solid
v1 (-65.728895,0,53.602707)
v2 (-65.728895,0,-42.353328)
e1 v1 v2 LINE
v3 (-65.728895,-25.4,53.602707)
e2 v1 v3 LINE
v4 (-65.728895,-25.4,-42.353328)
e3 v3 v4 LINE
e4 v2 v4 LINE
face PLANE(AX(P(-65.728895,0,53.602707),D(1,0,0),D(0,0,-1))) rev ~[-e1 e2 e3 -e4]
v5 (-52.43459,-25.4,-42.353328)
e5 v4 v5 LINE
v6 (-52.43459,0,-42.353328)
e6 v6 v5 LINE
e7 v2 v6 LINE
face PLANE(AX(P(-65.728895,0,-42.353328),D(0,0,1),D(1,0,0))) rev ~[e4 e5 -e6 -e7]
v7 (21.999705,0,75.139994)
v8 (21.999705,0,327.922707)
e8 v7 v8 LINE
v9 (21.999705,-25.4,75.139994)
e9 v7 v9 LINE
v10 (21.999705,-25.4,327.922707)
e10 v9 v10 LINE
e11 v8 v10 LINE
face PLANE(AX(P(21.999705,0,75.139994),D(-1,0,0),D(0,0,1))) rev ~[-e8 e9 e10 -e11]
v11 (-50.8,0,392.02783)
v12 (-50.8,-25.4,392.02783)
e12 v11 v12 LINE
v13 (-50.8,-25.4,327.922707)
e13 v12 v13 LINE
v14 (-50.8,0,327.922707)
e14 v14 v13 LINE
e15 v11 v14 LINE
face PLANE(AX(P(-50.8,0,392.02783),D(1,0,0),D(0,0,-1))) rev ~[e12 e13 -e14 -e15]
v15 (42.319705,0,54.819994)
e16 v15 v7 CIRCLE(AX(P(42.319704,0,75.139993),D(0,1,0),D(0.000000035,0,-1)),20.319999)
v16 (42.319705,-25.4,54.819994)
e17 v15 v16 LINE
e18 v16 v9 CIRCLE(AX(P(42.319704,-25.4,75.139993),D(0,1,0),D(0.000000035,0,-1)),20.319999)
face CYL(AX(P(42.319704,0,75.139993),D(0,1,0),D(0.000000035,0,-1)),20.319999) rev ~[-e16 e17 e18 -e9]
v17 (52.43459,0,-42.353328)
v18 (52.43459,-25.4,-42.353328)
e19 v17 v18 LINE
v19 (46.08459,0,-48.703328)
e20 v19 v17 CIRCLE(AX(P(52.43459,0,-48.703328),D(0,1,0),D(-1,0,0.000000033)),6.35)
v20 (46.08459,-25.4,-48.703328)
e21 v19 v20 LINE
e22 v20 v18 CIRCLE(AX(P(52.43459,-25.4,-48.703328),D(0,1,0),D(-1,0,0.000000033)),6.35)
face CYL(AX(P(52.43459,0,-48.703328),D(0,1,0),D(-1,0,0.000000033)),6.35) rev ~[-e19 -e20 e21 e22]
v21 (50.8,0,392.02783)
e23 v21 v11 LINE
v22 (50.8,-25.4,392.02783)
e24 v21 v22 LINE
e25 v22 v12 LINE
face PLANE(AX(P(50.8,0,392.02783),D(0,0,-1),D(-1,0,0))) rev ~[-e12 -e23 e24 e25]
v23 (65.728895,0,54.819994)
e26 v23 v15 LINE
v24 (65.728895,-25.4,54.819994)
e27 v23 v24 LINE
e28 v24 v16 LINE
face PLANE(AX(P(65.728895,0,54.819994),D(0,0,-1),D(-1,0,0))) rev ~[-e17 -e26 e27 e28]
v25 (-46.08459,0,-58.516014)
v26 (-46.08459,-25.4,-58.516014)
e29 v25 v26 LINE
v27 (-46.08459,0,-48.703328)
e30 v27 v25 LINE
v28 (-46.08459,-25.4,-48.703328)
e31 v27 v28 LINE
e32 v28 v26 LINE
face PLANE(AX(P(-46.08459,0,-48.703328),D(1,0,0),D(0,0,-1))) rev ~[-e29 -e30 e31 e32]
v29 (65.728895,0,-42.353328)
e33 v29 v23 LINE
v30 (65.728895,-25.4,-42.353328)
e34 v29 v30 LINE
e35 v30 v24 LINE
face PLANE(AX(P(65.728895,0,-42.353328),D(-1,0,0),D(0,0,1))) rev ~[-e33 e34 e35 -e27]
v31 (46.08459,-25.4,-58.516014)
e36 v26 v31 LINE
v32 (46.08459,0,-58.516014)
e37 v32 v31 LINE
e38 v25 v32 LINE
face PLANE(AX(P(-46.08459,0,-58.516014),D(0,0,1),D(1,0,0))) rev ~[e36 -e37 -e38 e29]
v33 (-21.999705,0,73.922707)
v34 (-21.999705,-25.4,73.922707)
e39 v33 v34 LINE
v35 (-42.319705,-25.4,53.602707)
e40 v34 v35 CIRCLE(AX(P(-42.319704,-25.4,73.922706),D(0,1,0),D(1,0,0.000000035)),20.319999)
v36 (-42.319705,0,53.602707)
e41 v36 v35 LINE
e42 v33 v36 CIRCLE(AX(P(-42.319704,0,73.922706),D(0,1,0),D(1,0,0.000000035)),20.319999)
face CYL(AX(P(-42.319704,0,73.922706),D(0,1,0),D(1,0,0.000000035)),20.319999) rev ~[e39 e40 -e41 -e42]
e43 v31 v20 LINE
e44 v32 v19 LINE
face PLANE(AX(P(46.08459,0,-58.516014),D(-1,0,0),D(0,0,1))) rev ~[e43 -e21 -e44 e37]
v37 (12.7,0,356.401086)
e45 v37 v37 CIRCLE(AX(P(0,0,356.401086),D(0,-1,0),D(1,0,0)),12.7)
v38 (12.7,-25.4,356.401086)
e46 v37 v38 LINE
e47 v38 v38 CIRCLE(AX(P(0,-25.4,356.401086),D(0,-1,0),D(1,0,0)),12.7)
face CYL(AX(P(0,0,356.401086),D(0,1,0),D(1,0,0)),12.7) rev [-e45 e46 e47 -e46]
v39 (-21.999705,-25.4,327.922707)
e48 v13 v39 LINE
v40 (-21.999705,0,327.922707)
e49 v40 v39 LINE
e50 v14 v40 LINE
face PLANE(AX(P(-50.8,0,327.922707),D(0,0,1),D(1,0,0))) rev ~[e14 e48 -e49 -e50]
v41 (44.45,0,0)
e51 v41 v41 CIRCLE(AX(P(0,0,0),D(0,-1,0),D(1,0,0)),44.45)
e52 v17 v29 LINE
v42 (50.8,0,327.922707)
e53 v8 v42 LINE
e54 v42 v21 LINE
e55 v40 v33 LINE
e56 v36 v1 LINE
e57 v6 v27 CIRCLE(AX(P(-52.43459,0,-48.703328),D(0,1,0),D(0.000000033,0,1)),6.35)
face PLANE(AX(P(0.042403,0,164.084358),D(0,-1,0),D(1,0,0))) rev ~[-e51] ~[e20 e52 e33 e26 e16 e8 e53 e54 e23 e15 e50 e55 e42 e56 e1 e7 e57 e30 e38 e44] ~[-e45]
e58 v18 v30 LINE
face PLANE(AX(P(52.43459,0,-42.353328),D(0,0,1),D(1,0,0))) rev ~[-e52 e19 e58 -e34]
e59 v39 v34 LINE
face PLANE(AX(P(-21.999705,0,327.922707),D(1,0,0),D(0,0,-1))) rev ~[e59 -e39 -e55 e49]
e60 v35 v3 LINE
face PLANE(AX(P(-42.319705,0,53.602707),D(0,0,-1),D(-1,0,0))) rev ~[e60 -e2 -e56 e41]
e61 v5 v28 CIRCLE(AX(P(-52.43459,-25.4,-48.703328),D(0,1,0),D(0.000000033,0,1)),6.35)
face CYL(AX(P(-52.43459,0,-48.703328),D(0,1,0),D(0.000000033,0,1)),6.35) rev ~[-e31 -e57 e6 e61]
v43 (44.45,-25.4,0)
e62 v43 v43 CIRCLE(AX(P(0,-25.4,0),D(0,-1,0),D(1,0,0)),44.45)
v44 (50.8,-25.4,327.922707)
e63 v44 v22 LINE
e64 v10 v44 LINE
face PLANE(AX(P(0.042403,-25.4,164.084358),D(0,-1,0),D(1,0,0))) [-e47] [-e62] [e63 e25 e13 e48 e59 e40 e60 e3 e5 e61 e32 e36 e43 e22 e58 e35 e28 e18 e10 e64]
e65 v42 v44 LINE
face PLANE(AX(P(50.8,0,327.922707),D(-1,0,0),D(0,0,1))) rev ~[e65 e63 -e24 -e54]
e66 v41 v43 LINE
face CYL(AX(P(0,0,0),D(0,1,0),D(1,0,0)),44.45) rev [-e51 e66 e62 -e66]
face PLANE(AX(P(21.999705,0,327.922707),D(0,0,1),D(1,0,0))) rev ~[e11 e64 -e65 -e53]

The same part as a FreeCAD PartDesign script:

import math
import FreeCAD as App
import Part
import Sketcher
from FreeCAD import Vector
Q = App.Units.Quantity

doc = App.newDocument("Part")
body = doc.addObject("PartDesign::Body", "Body")

# Sketch on XZ plane
sketch1 = body.newObject("Sketcher::SketchObject", "Sketch")
sketch1.AttachmentSupport = (doc.getObject("XZ_Plane"), [""])
sketch1.MapMode = "FlatFace"
sketch1.addGeometry([
    Part.LineSegment(Vector(-46, -49, 0), Vector(-46, -59, 0)),  # 0
    Part.LineSegment(Vector(-46, -59, 0), Vector(46, -59, 0)),  # 1
    Part.LineSegment(Vector(46, -59, 0), Vector(46, -49, 0)),  # 2
    Part.ArcOfCircle(Part.Circle(Vector(52, -49, 0), Vector(0, 0, 1), 6), math.radians(90), math.radians(180)),  # 3
    Part.LineSegment(Vector(52, -42, 0), Vector(66, -42, 0)),  # 4
    Part.LineSegment(Vector(66, -42, 0), Vector(66, 55, 0)),  # 5
    Part.LineSegment(Vector(66, 55, 0), Vector(42, 55, 0)),  # 6
    Part.ArcOfCircle(Part.Circle(Vector(42, 75, 0), Vector(0, 0, 1), 20), math.radians(180), math.radians(270)),  # 7
    Part.LineSegment(Vector(22, 75, 0), Vector(22, 328, 0)),  # 8
    Part.LineSegment(Vector(22, 328, 0), Vector(51, 328, 0)),  # 9
    Part.LineSegment(Vector(51, 328, 0), Vector(51, 392, 0)),  # 10
    Part.LineSegment(Vector(51, 392, 0), Vector(-51, 392, 0)),  # 11
    Part.LineSegment(Vector(-51, 392, 0), Vector(-51, 328, 0)),  # 12
    Part.LineSegment(Vector(-51, 328, 0), Vector(-22, 328, 0)),  # 13
    Part.LineSegment(Vector(-22, 328, 0), Vector(-22, 74, 0)),  # 14
    Part.ArcOfCircle(Part.Circle(Vector(-42, 74, 0), Vector(0, 0, 1), 20), math.radians(-90), math.radians(0)),  # 15
    Part.LineSegment(Vector(-42, 54, 0), Vector(-66, 54, 0)),  # 16
    Part.LineSegment(Vector(-66, 54, 0), Vector(-66, -42, 0)),  # 17
    Part.LineSegment(Vector(-66, -42, 0), Vector(-52, -42, 0)),  # 18
    Part.ArcOfCircle(Part.Circle(Vector(-52, -49, 0), Vector(0, 0, 1), 6), math.radians(0), math.radians(90)),  # 19
    Part.Circle(Vector(0, 0, 0), Vector(0, 0, 1), 44),  # 20
    Part.Circle(Vector(0, 356, 0), Vector(0, 0, 1), 13),  # 21
], False)
sketch1.addConstraint([
    Sketcher.Constraint("Coincident", 0, 2, 1, 1),
    Sketcher.Constraint("Coincident", 1, 2, 2, 1),
    Sketcher.Constraint("Tangent", 2, 2, 3, 2),
    Sketcher.Constraint("Tangent", 3, 1, 4, 1),
    Sketcher.Constraint("Coincident", 4, 2, 5, 1),
    Sketcher.Constraint("Coincident", 5, 2, 6, 1),
    Sketcher.Constraint("Tangent", 6, 2, 7, 2),
    Sketcher.Constraint("Tangent", 7, 1, 8, 1),
    Sketcher.Constraint("Coincident", 8, 2, 9, 1),
    Sketcher.Constraint("Coincident", 9, 2, 10, 1),
    Sketcher.Constraint("Coincident", 10, 2, 11, 1),
    Sketcher.Constraint("Coincident", 11, 2, 12, 1),
    Sketcher.Constraint("Coincident", 12, 2, 13, 1),
    Sketcher.Constraint("Coincident", 13, 2, 14, 1),
    Sketcher.Constraint("Tangent", 14, 2, 15, 2),
    Sketcher.Constraint("Tangent", 15, 1, 16, 1),
    Sketcher.Constraint("Coincident", 16, 2, 17, 1),
    Sketcher.Constraint("Coincident", 17, 2, 18, 1),
    Sketcher.Constraint("Tangent", 18, 2, 19, 2),
    Sketcher.Constraint("Tangent", 19, 1, 0, 1),
    Sketcher.Constraint("Vertical", 0),
    Sketcher.Constraint("Horizontal", 1),
    Sketcher.Constraint("Vertical", 2),
    Sketcher.Constraint("Horizontal", 4),
    Sketcher.Constraint("Vertical", 5),
    Sketcher.Constraint("Horizontal", 6),
    Sketcher.Constraint("Vertical", 8),
    Sketcher.Constraint("Horizontal", 9),
    Sketcher.Constraint("Vertical", 10),
    Sketcher.Constraint("Horizontal", 11),
    Sketcher.Constraint("Vertical", 12),
    Sketcher.Constraint("Horizontal", 13),
    Sketcher.Constraint("Vertical", 14),
    Sketcher.Constraint("Horizontal", 16),
    Sketcher.Constraint("Vertical", 17),
    Sketcher.Constraint("Horizontal", 18),
    Sketcher.Constraint("Coincident", 20, 3, -1, 1),
    Sketcher.Constraint("Equal", 7, 15),
    Sketcher.Constraint("Equal", 3, 19),
    Sketcher.Constraint("Symmetric", 3, 3, 19, 3, -2),
    Sketcher.Constraint("Symmetric", 9, 2, 12, 2, -2),
    Sketcher.Constraint("PointOnObject", 21, 3, -2),
    Sketcher.Constraint("Equal", 9, 13),
    Sketcher.Constraint("Equal", 6, 16),
    Sketcher.Constraint("Diameter", 21, Q("1 in")),
    Sketcher.Constraint("Diameter", 20, Q("3.5 in")),
    Sketcher.Constraint("Radius", 7, Q("0.8 in")),
    Sketcher.Constraint("DistanceX", 11, 2, 11, 1, Q("4 in")),
    Sketcher.Constraint("DistanceY", 14, 2, 14, 1, Q("10 in")),
    Sketcher.Constraint("Radius", 3, Q("0.25 in")),
    Sketcher.Constraint("DistanceX", 1, 1, 1, 2, 92.16918),
    Sketcher.Constraint("DistanceX", 6, 2, 6, 1, 23.40919),
    Sketcher.Constraint("DistanceY", 5, 1, 5, 2, 97.173322),
    Sketcher.Constraint("DistanceX", 16, 2, 7, 1, 87.7286),
    Sketcher.Constraint("DistanceY", 0, 2, 0, 1, 9.812686),
    Sketcher.Constraint("DistanceY", 8, 1, 8, 2, 252.782713),
    Sketcher.Constraint("DistanceY", 10, 1, 10, 2, 64.105123),
    Sketcher.Constraint("DistanceY", 3, 3, -1, 1, 48.703328),
    Sketcher.Constraint("DistanceY", 15, 3, 21, 3, 282.47838),
])
pad1 = body.newObject("PartDesign::Pad", "Pad")
pad1.Profile = sketch1
pad1.Length = Q("1 in")

doc.recompute()
